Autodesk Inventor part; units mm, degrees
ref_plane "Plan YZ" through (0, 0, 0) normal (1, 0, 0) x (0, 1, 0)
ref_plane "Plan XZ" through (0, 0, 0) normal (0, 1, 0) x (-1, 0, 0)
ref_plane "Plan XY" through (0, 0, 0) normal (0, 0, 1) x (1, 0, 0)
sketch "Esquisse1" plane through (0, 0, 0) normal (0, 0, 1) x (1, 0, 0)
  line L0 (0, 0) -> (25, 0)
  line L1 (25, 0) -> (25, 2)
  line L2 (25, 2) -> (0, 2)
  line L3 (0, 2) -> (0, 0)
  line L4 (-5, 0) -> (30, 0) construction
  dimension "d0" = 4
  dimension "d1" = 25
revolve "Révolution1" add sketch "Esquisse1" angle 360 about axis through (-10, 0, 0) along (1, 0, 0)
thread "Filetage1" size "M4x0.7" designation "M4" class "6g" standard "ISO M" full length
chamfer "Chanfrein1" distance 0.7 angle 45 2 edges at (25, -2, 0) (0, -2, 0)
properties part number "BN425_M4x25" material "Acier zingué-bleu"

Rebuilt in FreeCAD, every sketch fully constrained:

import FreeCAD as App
import Part
import Sketcher
Q = App.Units.Quantity


def edges_at(feature, points):
    """Names of the edges that pass closest to the given points."""
    edges = feature.Shape.Edges
    near = lambda p: min(range(len(edges)), key=lambda i: edges[i].distToShape(Part.Vertex(*p))[0])
    return sorted({f"Edge{near(p) + 1}" for p in points})


def add_polygon(sketch, points):
    """Adds a closed chain of lines whose ends are joined by coincident constraints."""
    first, n = sketch.GeometryCount, len(points)
    for a, b in zip(points, points[1:] + points[:1]):
        sketch.addGeometry(Part.LineSegment(App.Vector(*a, 0), App.Vector(*b, 0)), False)
    for i in range(n):
        sketch.addConstraint(Sketcher.Constraint("Coincident", first + i, 2, first + (i + 1) % n, 1))

doc = App.newDocument("Part")
body = doc.addObject("PartDesign::Body", "Body")

# Sketch on XY plane
sketch1 = body.newObject("Sketcher::SketchObject", "Sketch")
sketch1.AttachmentSupport = (doc.getObject("XY_Plane"), [""])
sketch1.MapMode = "FlatFace"
add_polygon(sketch1, [(0, 2), (0, 0), (25, 0), (25, 2)])  # lines 0-3
sketch1.addConstraint(Sketcher.Constraint("Vertical", 0))
sketch1.addConstraint(Sketcher.Constraint("Horizontal", 1))
sketch1.addConstraint(Sketcher.Constraint("Vertical", 2))
sketch1.addConstraint(Sketcher.Constraint("Horizontal", 3))
sketch1.addConstraint(Sketcher.Constraint("Coincident", 0, 2, -1, 1))
sketch1.addConstraint(Sketcher.Constraint("DistanceX", 1, 1, 1, 2, Q("25 mm")))
sketch1.addConstraint(Sketcher.Constraint("DistanceY", 0, 2, 0, 1, Q("2 mm")))
revolution = body.newObject("PartDesign::Revolution", "Revolution")
revolution.Profile = sketch1
revolution.ReferenceAxis = (sketch1, ["H_Axis"])
revolution.Angle = 360
doc.recompute()

chamfer = body.newObject("PartDesign::Chamfer", "Chamfer")
chamfer.Base = (revolution, edges_at(revolution, [(25, -2, 0), (0, -2, 0)]))
chamfer.Size = 0.7

doc.recompute()
